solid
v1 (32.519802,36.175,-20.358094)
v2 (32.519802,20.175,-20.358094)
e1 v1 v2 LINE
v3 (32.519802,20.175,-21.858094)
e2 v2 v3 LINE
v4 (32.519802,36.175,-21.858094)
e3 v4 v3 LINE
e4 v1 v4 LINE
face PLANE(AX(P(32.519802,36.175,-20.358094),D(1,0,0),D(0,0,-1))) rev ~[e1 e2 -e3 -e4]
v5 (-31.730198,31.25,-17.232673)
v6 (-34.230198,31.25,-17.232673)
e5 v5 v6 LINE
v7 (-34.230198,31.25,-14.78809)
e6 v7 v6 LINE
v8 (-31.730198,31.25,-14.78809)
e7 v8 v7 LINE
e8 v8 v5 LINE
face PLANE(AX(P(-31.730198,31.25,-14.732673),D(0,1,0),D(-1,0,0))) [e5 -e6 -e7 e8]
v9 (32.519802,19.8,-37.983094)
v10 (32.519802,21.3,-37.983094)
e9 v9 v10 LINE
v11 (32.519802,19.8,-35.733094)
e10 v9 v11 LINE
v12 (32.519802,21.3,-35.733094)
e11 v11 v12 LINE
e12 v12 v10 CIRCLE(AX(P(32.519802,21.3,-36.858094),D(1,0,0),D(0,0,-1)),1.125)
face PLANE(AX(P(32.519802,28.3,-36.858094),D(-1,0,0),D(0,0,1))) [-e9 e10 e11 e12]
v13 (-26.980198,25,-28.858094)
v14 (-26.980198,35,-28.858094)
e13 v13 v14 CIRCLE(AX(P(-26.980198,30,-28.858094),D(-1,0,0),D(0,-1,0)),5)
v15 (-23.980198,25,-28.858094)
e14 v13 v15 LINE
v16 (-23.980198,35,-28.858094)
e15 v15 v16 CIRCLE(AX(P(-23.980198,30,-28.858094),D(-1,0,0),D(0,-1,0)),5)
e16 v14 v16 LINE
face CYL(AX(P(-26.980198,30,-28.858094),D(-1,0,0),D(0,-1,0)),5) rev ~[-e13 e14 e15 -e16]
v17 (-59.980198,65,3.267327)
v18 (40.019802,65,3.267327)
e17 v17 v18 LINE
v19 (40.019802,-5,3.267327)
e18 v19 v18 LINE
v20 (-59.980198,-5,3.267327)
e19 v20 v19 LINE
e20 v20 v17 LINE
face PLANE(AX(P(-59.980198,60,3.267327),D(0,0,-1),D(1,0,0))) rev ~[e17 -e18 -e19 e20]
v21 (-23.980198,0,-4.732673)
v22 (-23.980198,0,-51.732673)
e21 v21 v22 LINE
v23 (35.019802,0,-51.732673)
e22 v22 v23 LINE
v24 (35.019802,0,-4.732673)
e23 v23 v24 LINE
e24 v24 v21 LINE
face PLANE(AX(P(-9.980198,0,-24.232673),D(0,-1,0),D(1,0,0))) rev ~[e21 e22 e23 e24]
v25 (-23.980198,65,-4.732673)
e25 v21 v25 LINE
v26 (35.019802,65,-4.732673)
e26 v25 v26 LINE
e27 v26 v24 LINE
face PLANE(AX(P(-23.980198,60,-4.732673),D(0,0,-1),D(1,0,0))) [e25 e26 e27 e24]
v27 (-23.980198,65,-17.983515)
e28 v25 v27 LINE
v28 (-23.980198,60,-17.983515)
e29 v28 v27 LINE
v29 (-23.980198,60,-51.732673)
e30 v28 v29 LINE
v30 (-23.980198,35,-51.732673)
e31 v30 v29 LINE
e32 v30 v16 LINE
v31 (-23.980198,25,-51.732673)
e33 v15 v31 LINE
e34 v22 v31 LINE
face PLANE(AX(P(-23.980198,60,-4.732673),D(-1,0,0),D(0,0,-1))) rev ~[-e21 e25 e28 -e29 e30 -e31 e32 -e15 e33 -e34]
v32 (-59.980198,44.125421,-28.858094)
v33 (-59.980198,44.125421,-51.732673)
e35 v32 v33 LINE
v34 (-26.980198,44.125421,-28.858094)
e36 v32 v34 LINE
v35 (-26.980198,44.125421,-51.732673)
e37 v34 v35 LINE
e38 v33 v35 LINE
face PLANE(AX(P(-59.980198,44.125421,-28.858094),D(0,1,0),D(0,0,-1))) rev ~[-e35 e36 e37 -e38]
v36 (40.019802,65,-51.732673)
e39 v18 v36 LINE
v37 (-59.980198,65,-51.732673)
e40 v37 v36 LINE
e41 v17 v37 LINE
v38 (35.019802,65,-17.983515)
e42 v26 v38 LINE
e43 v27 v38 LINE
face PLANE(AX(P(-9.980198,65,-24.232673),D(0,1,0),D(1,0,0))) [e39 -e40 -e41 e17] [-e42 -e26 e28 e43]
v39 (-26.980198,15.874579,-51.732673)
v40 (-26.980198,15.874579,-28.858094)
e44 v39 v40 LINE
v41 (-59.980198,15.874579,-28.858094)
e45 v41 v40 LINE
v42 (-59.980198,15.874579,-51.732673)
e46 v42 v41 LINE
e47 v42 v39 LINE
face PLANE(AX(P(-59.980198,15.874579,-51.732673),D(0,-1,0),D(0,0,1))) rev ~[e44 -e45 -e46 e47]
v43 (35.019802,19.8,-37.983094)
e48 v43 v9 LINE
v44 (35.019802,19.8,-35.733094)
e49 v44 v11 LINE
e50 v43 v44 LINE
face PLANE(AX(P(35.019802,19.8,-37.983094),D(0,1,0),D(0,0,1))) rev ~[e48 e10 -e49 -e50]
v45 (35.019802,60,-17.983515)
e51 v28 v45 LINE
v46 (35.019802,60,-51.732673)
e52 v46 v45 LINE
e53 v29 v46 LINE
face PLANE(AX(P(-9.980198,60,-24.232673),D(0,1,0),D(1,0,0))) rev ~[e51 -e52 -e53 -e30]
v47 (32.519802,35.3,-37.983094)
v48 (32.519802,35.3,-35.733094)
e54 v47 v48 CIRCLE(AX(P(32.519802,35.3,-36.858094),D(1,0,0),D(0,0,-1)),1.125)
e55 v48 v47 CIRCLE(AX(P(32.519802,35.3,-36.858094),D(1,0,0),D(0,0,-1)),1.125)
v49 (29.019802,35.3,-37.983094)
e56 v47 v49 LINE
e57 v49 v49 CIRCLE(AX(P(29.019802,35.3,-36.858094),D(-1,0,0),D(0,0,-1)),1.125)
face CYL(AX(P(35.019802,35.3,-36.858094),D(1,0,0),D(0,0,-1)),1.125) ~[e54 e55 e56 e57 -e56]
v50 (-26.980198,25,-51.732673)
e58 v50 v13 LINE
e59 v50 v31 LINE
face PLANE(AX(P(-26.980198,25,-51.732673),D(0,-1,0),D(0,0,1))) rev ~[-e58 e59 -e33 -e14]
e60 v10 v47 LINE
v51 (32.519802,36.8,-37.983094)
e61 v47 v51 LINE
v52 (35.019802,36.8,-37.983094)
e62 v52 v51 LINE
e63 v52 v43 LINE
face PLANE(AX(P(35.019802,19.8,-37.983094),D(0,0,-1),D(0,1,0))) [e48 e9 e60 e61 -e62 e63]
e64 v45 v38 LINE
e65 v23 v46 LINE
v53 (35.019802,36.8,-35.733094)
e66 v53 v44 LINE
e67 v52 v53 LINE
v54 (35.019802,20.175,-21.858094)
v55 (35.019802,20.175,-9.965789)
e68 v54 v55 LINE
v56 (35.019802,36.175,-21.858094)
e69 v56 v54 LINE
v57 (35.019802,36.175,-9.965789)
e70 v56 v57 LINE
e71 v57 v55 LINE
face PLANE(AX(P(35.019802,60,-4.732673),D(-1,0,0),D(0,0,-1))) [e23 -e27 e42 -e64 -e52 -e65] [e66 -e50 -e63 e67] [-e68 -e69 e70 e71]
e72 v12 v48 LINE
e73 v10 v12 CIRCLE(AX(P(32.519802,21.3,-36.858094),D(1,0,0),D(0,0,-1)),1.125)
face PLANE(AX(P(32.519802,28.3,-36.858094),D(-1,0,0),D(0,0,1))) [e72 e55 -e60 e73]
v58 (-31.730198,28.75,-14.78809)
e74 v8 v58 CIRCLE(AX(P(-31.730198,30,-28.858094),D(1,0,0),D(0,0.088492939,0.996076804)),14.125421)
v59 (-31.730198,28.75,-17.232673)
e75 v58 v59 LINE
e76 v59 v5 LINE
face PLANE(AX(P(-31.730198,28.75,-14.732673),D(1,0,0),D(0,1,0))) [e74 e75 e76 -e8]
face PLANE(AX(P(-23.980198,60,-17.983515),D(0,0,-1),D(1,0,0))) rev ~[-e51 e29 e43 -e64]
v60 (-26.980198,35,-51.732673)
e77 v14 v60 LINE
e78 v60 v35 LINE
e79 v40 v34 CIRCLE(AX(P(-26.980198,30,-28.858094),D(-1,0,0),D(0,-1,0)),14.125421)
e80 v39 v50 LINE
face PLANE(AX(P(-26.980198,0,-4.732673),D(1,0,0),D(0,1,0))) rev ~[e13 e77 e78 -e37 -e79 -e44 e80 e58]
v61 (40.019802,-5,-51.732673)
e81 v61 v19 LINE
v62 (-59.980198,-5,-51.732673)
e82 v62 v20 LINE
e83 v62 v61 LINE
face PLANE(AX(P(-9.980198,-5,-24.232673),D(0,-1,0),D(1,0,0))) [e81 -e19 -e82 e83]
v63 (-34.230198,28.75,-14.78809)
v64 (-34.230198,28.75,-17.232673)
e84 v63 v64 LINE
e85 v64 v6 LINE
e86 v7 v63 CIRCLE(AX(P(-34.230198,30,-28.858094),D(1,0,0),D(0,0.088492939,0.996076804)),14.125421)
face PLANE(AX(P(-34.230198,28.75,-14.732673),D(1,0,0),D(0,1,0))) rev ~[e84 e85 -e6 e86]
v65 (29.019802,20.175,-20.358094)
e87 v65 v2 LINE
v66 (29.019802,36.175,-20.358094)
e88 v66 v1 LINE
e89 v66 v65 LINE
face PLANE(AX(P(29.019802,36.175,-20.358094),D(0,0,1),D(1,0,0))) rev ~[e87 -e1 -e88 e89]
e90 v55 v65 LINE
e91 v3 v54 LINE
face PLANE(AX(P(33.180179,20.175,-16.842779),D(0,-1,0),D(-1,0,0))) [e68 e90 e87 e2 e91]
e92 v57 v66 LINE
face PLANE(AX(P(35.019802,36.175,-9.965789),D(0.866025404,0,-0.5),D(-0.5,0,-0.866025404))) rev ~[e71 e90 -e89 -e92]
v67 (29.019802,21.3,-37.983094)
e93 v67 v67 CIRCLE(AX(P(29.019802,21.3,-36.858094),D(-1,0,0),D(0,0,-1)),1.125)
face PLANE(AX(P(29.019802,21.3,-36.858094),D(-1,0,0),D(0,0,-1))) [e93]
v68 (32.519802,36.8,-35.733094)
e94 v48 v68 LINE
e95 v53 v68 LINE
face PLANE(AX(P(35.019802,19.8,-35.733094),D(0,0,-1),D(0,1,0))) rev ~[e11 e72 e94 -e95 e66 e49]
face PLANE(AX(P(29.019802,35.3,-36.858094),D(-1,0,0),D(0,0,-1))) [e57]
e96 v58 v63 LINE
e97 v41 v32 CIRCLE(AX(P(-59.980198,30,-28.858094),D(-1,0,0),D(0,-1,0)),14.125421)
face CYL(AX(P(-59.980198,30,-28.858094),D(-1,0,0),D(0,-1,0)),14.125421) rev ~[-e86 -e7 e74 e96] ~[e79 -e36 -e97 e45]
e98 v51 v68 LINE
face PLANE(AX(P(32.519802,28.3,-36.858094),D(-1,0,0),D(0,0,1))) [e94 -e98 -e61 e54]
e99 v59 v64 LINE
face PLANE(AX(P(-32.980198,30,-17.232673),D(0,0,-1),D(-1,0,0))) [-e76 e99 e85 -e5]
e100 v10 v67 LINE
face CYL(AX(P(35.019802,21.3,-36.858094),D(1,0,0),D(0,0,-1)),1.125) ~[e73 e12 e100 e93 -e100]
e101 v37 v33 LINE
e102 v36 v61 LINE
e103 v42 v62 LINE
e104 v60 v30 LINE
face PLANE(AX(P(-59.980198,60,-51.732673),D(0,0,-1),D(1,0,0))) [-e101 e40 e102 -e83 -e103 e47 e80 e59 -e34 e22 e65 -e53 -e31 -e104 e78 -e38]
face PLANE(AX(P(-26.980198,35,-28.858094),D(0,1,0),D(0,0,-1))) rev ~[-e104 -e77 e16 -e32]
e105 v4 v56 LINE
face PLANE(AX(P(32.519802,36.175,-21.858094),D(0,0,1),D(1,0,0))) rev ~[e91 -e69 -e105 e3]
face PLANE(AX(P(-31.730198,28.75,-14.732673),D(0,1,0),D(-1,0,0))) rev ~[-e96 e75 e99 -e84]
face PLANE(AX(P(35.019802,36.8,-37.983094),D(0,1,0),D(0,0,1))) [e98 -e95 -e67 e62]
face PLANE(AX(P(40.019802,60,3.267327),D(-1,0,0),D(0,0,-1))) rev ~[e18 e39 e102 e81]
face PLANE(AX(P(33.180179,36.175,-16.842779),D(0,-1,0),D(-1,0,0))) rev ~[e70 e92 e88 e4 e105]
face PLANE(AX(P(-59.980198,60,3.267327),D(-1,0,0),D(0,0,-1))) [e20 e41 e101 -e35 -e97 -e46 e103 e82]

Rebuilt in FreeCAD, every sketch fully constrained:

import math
import FreeCAD as App
import Part
import Sketcher

V = App.Vector
Q = App.Units.Quantity

doc = App.newDocument("Part")
body = doc.addObject("PartDesign::Body", "Body")

# Sketch on XZ plane
sketch1 = body.newObject("Sketcher::SketchObject", "Sketch")
sketch1.AttachmentSupport = (doc.getObject("XZ_Plane"), [""])
sketch1.MapMode = "FlatFace"
sketch1.addGeometry([
    Part.LineSegment(V(40, 3, 0), V(40, -52, 0)),  # 0
    Part.LineSegment(V(40, -52, 0), V(35, -52, 0)),  # 1
    Part.LineSegment(V(35, -52, 0), V(35, -5, 0)),  # 2
    Part.LineSegment(V(35, -5, 0), V(-27, -5, 0)),  # 3
    Part.LineSegment(V(-27, -5, 0), V(-27, -52, 0)),  # 4
    Part.LineSegment(V(-27, -52, 0), V(-60, -52, 0)),  # 5
    Part.LineSegment(V(-60, -52, 0), V(-60, 3, 0)),  # 6
    Part.LineSegment(V(-60, 3, 0), V(40, 3, 0)),  # 7
], False)
sketch1.addConstraint([
    Sketcher.Constraint("Coincident", 0, 2, 1, 1),
    Sketcher.Constraint("Coincident", 1, 2, 2, 1),
    Sketcher.Constraint("Coincident", 2, 2, 3, 1),
    Sketcher.Constraint("Coincident", 3, 2, 4, 1),
    Sketcher.Constraint("Coincident", 4, 2, 5, 1),
    Sketcher.Constraint("Coincident", 5, 2, 6, 1),
    Sketcher.Constraint("Coincident", 6, 2, 7, 1),
    Sketcher.Constraint("Coincident", 7, 2, 0, 1),
    Sketcher.Constraint("Vertical", 0),
    Sketcher.Constraint("Horizontal", 1),
    Sketcher.Constraint("Vertical", 2),
    Sketcher.Constraint("Horizontal", 3),
    Sketcher.Constraint("Vertical", 4),
    Sketcher.Constraint("Horizontal", 5),
    Sketcher.Constraint("Vertical", 6),
    Sketcher.Constraint("Horizontal", 7),
    Sketcher.Constraint("Horizontal", 1, 2, 4, 2),
    Sketcher.Constraint("DistanceX", 1, 2, 1, 1, 5.0),
    Sketcher.Constraint("DistanceX", 3, 2, 3, 1, 62.0),
    Sketcher.Constraint("DistanceX", 5, 2, 5, 1, 33.0),
    Sketcher.Constraint("DistanceY", 0, 2, 0, 1, 55.0),
    Sketcher.Constraint("DistanceY", 2, 1, 2, 2, 47.0),
    Sketcher.Constraint("DistanceX", -1, 1, 0, 2, 40.019802),
    Sketcher.Constraint("DistanceY", 0, 2, -1, 1, 51.732673),
])
pad1 = body.newObject("PartDesign::Pad", "Pad")
pad1.Profile = sketch1
pad1.Length = 60
pad1.Reversed = True

# Sketch on YZ plane
sketch2 = body.newObject("Sketcher::SketchObject", "Sketch001")
sketch2.AttachmentSupport = (doc.getObject("YZ_Plane"), [""])
sketch2.MapMode = "FlatFace"
sketch2.AttachmentOffset = App.Placement(V(0, 0, -59.980198), App.Rotation())
sketch2.addGeometry([
    Part.LineSegment(V(44, -29, 0), V(44, -52, 0)),
    Part.LineSegment(V(44, -52, 0), V(16, -52, 0)),
    Part.LineSegment(V(16, -52, 0), V(16, -29, 0)),
    Part.ArcOfCircle(Part.Circle(V(30, -29, 0), V(0, 0, 1), 14), math.radians(0), math.radians(180)),
], False)
sketch2.addConstraint([
    Sketcher.Constraint("Coincident", 0, 2, 1, 1),
    Sketcher.Constraint("Coincident", 1, 2, 2, 1),
    Sketcher.Constraint("Tangent", 2, 2, 3, 2),
    Sketcher.Constraint("Tangent", 3, 1, 0, 1),
    Sketcher.Constraint("Vertical", 0),
    Sketcher.Constraint("Horizontal", 1),
    Sketcher.Constraint("Vertical", 2),
    Sketcher.Constraint("DistanceX", -1, 1, 3, 3, 30.0),
    Sketcher.Constraint("Radius", 3, 14.125421),
    Sketcher.Constraint("DistanceY", 0, 2, 0, 1, 22.874579),
    Sketcher.Constraint("DistanceY", 3, 3, -1, 1, 28.858094),
])
pocket1 = body.newObject("PartDesign::Pocket", "Pocket")
pocket1.Profile = sketch2
pocket1.Length = 40
pocket1.Reversed = True

# Sketch on XY plane
sketch3 = body.newObject("Sketcher::SketchObject", "Sketch002")
sketch3.AttachmentSupport = (doc.getObject("XY_Plane"), [""])
sketch3.MapMode = "FlatFace"
sketch3.AttachmentOffset = App.Placement(V(0, 0, -14.732673), App.Rotation())
sketch3.addGeometry([
    Part.LineSegment(V(-31.7, 31.2, 0), V(-31.7, 28.8, 0)),
    Part.LineSegment(V(-31.7, 28.8, 0), V(-34.2, 28.8, 0)),
    Part.LineSegment(V(-34.2, 28.8, 0), V(-34.2, 31.2, 0)),
    Part.LineSegment(V(-34.2, 31.2, 0), V(-31.7, 31.2, 0)),
], False)
sketch3.addConstraint([
    Sketcher.Constraint("Coincident", 0, 2, 1, 1),
    Sketcher.Constraint("Coincident", 1, 2, 2, 1),
    Sketcher.Constraint("Coincident", 2, 2, 3, 1),
    Sketcher.Constraint("Coincident", 3, 2, 0, 1),
    Sketcher.Constraint("Vertical", 0),
    Sketcher.Constraint("Horizontal", 1),
    Sketcher.Constraint("Vertical", 2),
    Sketcher.Constraint("Horizontal", 3),
    Sketcher.Constraint("Equal", 3, 0),
    Sketcher.Constraint("DistanceX", 1, 2, 1, 1, 2.5),
    Sketcher.Constraint("DistanceY", -1, 1, 0, 2, 28.75),
    Sketcher.Constraint("DistanceX", 0, 2, -1, 1, 31.730198),
])
pad2 = body.newObject("PartDesign::Pad", "Pad001")
pad2.Profile = sketch3
pad2.Length = 2.5
pad2.Reversed = True

# Sketch on XY plane
sketch4 = body.newObject("Sketcher::SketchObject", "Sketch003")
sketch4.AttachmentSupport = (doc.getObject("XY_Plane"), [""])
sketch4.MapMode = "FlatFace"
sketch4.AttachmentOffset = App.Placement(V(0, 0, -4.732673), App.Rotation())
sketch4.addGeometry([
    Part.LineSegment(V(-24, 60, 0), V(-24, 0, 0)),
    Part.LineSegment(V(-24, 0, 0), V(-27, 0, 0)),
    Part.LineSegment(V(-27, 0, 0), V(-27, 60, 0)),
    Part.LineSegment(V(-27, 60, 0), V(-24, 60, 0)),
], False)
sketch4.addConstraint([
    Sketcher.Constraint("Coincident", 0, 2, 1, 1),
    Sketcher.Constraint("Coincident", 1, 2, 2, 1),
    Sketcher.Constraint("Coincident", 2, 2, 3, 1),
    Sketcher.Constraint("Coincident", 3, 2, 0, 1),
    Sketcher.Constraint("Vertical", 0),
    Sketcher.Constraint("Horizontal", 1),
    Sketcher.Constraint("Vertical", 2),
    Sketcher.Constraint("Horizontal", 3),
    Sketcher.Constraint("PointOnObject", 0, 2, -1),
    Sketcher.Constraint("DistanceX", 1, 2, 1, 1, 3.0),
    Sketcher.Constraint("DistanceY", 0, 2, 0, 1, 60.0),
    Sketcher.Constraint("DistanceX", 0, 2, -1, 1, 23.980198),
])
pad3 = body.newObject("PartDesign::Pad", "Pad002")
pad3.Profile = sketch4
pad3.Length = 47
pad3.Reversed = True

# Sketch on YZ plane
sketch5 = body.newObject("Sketcher::SketchObject", "Sketch004")
sketch5.AttachmentSupport = (doc.getObject("YZ_Plane"), [""])
sketch5.MapMode = "FlatFace"
sketch5.AttachmentOffset = App.Placement(V(0, 0, 35.019802), App.Rotation())
sketch5.addGeometry([
    Part.Circle(V(35.3, -36.9, 0), V(0, 0, 1), 1.1),
    Part.Circle(V(21.3, -36.9, 0), V(0, 0, 1), 1.1),
], False)
sketch5.addConstraint([
    Sketcher.Constraint("Equal", 0, 1),
    Sketcher.Constraint("Horizontal", 0, 3, 1, 3),
    Sketcher.Constraint("Diameter", 0, 2.25),
    Sketcher.Constraint("DistanceX", 1, 3, 0, 3, 14.0),
    Sketcher.Constraint("DistanceX", -1, 1, 0, 3, 35.3),
    Sketcher.Constraint("DistanceY", 0, 3, -1, 1, 36.858094),
])
pad4 = body.newObject("PartDesign::Pad", "Pad003")
pad4.Profile = sketch5
pad4.Length = 6
pad4.Reversed = True

# Sketch on YZ plane
sketch6 = body.newObject("Sketcher::SketchObject", "Sketch005")
sketch6.AttachmentSupport = (doc.getObject("YZ_Plane"), [""])
sketch6.MapMode = "FlatFace"
sketch6.AttachmentOffset = App.Placement(V(0, 0, -26.980198), App.Rotation())
sketch6.addGeometry([
    Part.LineSegment(V(35, -29, 0), V(35, -52, 0)),
    Part.LineSegment(V(35, -52, 0), V(25, -52, 0)),
    Part.LineSegment(V(25, -52, 0), V(25, -29, 0)),
    Part.ArcOfCircle(Part.Circle(V(30, -29, 0), V(0, 0, 1), 5), math.radians(0), math.radians(180)),
], False)
sketch6.addConstraint([
    Sketcher.Constraint("Coincident", 0, 2, 1, 1),
    Sketcher.Constraint("Coincident", 1, 2, 2, 1),
    Sketcher.Constraint("Tangent", 2, 2, 3, 2),
    Sketcher.Constraint("Tangent", 3, 1, 0, 1),
    Sketcher.Constraint("Vertical", 0),
    Sketcher.Constraint("Horizontal", 1),
    Sketcher.Constraint("Vertical", 2),
    Sketcher.Constraint("Radius", 3, 5.0),
    Sketcher.Constraint("DistanceX", -1, 1, 3, 3, 30.0),
    Sketcher.Constraint("DistanceY", 0, 2, 0, 1, 22.874579),
    Sketcher.Constraint("DistanceY", 3, 3, -1, 1, 28.858094),
])
pocket2 = body.newObject("PartDesign::Pocket", "Pocket001")
pocket2.Profile = sketch6
pocket2.Length = 10
pocket2.Reversed = True

# Sketch on XZ plane
sketch7 = body.newObject("Sketcher::SketchObject", "Sketch006")
sketch7.AttachmentSupport = (doc.getObject("XZ_Plane"), [""])
sketch7.MapMode = "FlatFace"
sketch7.addGeometry([
    Part.LineSegment(V(-60, 3, 0), V(-60, -52, 0)),
    Part.LineSegment(V(-60, -52, 0), V(40, -52, 0)),
    Part.LineSegment(V(40, -52, 0), V(40, 3, 0)),
    Part.LineSegment(V(40, 3, 0), V(-60, 3, 0)),
], False)
sketch7.addConstraint([
    Sketcher.Constraint("Coincident", 0, 2, 1, 1),
    Sketcher.Constraint("Coincident", 1, 2, 2, 1),
    Sketcher.Constraint("Coincident", 2, 2, 3, 1),
    Sketcher.Constraint("Coincident", 3, 2, 0, 1),
    Sketcher.Constraint("Vertical", 0),
    Sketcher.Constraint("Horizontal", 1),
    Sketcher.Constraint("Vertical", 2),
    Sketcher.Constraint("Horizontal", 3),
    Sketcher.Constraint("DistanceX", 1, 1, 1, 2, 100.0),
    Sketcher.Constraint("DistanceY", 0, 2, 0, 1, 55.0),
    Sketcher.Constraint("DistanceX", 0, 2, -1, 1, 59.980198),
    Sketcher.Constraint("DistanceY", 0, 2, -1, 1, 51.732673),
])
pad5 = body.newObject("PartDesign::Pad", "Pad004")
pad5.Profile = sketch7
pad5.Length = 5

# Sketch on XZ plane
sketch8 = body.newObject("Sketcher::SketchObject", "Sketch007")
sketch8.AttachmentSupport = (doc.getObject("XZ_Plane"), [""])
sketch8.MapMode = "FlatFace"
sketch8.AttachmentOffset = App.Placement(V(0, 0, -36.175), App.Rotation())
sketch8.addGeometry([
    Part.LineSegment(V(35, -21.9, 0), V(35, -10, 0)),  # 0
    Part.LineSegment(V(35, -10, 0), V(29, -20.4, 0)),  # 1
    Part.LineSegment(V(29, -20.4, 0), V(32.5, -20.4, 0)),  # 2
    Part.LineSegment(V(32.5, -20.4, 0), V(32.5, -21.9, 0)),  # 3
    Part.LineSegment(V(32.5, -21.9, 0), V(35, -21.9, 0)),  # 4
], False)
sketch8.addConstraint([
    Sketcher.Constraint("Coincident", 0, 2, 1, 1),
    Sketcher.Constraint("Coincident", 1, 2, 2, 1),
    Sketcher.Constraint("Coincident", 2, 2, 3, 1),
    Sketcher.Constraint("Coincident", 3, 2, 4, 1),
    Sketcher.Constraint("Coincident", 4, 2, 0, 1),
    Sketcher.Constraint("Vertical", 0),
    Sketcher.Constraint("Horizontal", 2),
    Sketcher.Constraint("Vertical", 3),
    Sketcher.Constraint("Horizontal", 4),
    Sketcher.Constraint("Angle", 1, Q("-120 deg")),
    Sketcher.Constraint("Distance", 1, 12.0),
    Sketcher.Constraint("DistanceX", 2, 1, 2, 2, 3.5),
    Sketcher.Constraint("DistanceY", 3, 2, 3, 1, 1.5),
    Sketcher.Constraint("DistanceX", -1, 1, 0, 2, 35.019802),
    Sketcher.Constraint("DistanceY", 0, 2, -1, 1, 9.965789),
])
pad6 = body.newObject("PartDesign::Pad", "Pad005")
pad6.Profile = sketch8
pad6.Length = 16

# Sketch on YZ plane
sketch9 = body.newObject("Sketcher::SketchObject", "Sketch008")
sketch9.AttachmentSupport = (doc.getObject("YZ_Plane"), [""])
sketch9.MapMode = "FlatFace"
sketch9.AttachmentOffset = App.Placement(V(0, 0, 35.019802), App.Rotation())
sketch9.addGeometry([
    Part.LineSegment(V(36.8, -38, 0), V(19.8, -38, 0)),
    Part.LineSegment(V(19.8, -38, 0), V(19.8, -35.7, 0)),
    Part.LineSegment(V(19.8, -35.7, 0), V(36.8, -35.7, 0)),
    Part.LineSegment(V(36.8, -35.7, 0), V(36.8, -38, 0)),
], False)
sketch9.addConstraint([
    Sketcher.Constraint("Coincident", 0, 2, 1, 1),
    Sketcher.Constraint("Coincident", 1, 2, 2, 1),
    Sketcher.Constraint("Coincident", 2, 2, 3, 1),
    Sketcher.Constraint("Coincident", 3, 2, 0, 1),
    Sketcher.Constraint("Horizontal", 0),
    Sketcher.Constraint("Vertical", 1),
    Sketcher.Constraint("Horizontal", 2),
    Sketcher.Constraint("Vertical", 3),
    Sketcher.Constraint("DistanceX", 0, 2, 0, 1, 17.0),
    Sketcher.Constraint("DistanceY", 1, 1, 1, 2, 2.25),
    Sketcher.Constraint("DistanceX", -1, 1, 0, 2, 19.8),
    Sketcher.Constraint("DistanceY", 0, 2, -1, 1, 37.983094),
])
pad7 = body.newObject("PartDesign::Pad", "Pad006")
pad7.Profile = sketch9
pad7.Length = 2.5
pad7.Reversed = True

# Sketch on XZ plane
sketch10 = body.newObject("Sketcher::SketchObject", "Sketch009")
sketch10.AttachmentSupport = (doc.getObject("XZ_Plane"), [""])
sketch10.MapMode = "FlatFace"
sketch10.AttachmentOffset = App.Placement(V(0, 0, -60), App.Rotation())
sketch10.addGeometry([
    Part.LineSegment(V(-60, -52, 0), V(-60, 3, 0)),  # 0
    Part.LineSegment(V(-60, 3, 0), V(40, 3, 0)),  # 1
    Part.LineSegment(V(40, 3, 0), V(40, -52, 0)),  # 2
    Part.LineSegment(V(40, -52, 0), V(-60, -52, 0)),  # 3
    Part.LineSegment(V(35, -5, 0), V(-24, -5, 0)),  # 4
    Part.LineSegment(V(-24, -5, 0), V(-24, -18, 0)),  # 5
    Part.LineSegment(V(-24, -18, 0), V(35, -18, 0)),  # 6
    Part.LineSegment(V(35, -18, 0), V(35, -5, 0)),  # 7
], False)
sketch10.addConstraint([
    Sketcher.Constraint("Coincident", 0, 2, 1, 1),
    Sketcher.Constraint("Coincident", 1, 2, 2, 1),
    Sketcher.Constraint("Coincident", 2, 2, 3, 1),
    Sketcher.Constraint("Coincident", 3, 2, 0, 1),
    Sketcher.Constraint("Coincident", 4, 2, 5, 1),
    Sketcher.Constraint("Coincident", 5, 2, 6, 1),
    Sketcher.Constraint("Coincident", 6, 2, 7, 1),
    Sketcher.Constraint("Coincident", 7, 2, 4, 1),
    Sketcher.Constraint("Vertical", 0),
    Sketcher.Constraint("Horizontal", 1),
    Sketcher.Constraint("Vertical", 2),
    Sketcher.Constraint("Horizontal", 3),
    Sketcher.Constraint("Horizontal", 4),
    Sketcher.Constraint("Vertical", 5),
    Sketcher.Constraint("Horizontal", 6),
    Sketcher.Constraint("Vertical", 7),
    Sketcher.Constraint("DistanceX", 1, 1, 1, 2, 100.0),
    Sketcher.Constraint("DistanceX", 4, 2, 4, 1, 59.0),
    Sketcher.Constraint("DistanceY", 0, 1, 0, 2, 55.0),
    Sketcher.Constraint("DistanceX", 0, 2, 4, 2, 36.0),
    Sketcher.Constraint("DistanceY", 4, 2, 0, 2, 8.0),
    Sketcher.Constraint("DistanceY", 5, 2, 5, 1, 13.250842),
    Sketcher.Constraint("DistanceX", 0, 2, -1, 1, 59.980198),
    Sketcher.Constraint("DistanceY", -1, 1, 0, 2, 3.267327),
])
pad8 = body.newObject("PartDesign::Pad", "Pad007")
pad8.Profile = sketch10
pad8.Length = 5
pad8.Reversed = True

doc.recompute()
